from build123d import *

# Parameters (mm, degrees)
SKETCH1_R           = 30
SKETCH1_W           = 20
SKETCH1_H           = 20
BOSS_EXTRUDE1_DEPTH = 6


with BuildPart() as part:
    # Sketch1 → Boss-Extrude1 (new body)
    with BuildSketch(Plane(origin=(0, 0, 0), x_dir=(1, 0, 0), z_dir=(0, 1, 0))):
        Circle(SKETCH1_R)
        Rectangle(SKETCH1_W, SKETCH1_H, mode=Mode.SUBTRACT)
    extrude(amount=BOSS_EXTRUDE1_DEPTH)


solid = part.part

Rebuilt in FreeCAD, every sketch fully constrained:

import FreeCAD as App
import Part
import Sketcher
Q = App.Units.Quantity

doc = App.newDocument("Part")
body = doc.addObject("PartDesign::Body", "Body")

sketch1 = body.newObject("Sketcher::SketchObject", "Sketch")
sketch1.AttachmentSupport = (doc.getObject("XZ_Plane"), [""])
sketch1.MapMode = "FlatFace"
sketch1.addGeometry(Part.Circle(App.Vector(0, 0, 0), App.Vector(0, 0, 1), 30), False)
sketch1.addGeometry(Part.LineSegment(App.Vector(10, 10, 0), App.Vector(-10, 10, 0)), False)
sketch1.addGeometry(Part.LineSegment(App.Vector(-10, 10, 0), App.Vector(-10, -10, 0)), False)
sketch1.addGeometry(Part.LineSegment(App.Vector(-10, -10, 0), App.Vector(10, -10, 0)), False)
sketch1.addGeometry(Part.LineSegment(App.Vector(10, -10, 0), App.Vector(10, 10, 0)), False)
sketch1.addConstraint(Sketcher.Constraint("Coincident", 1, 2, 2, 1))
sketch1.addConstraint(Sketcher.Constraint("Coincident", 2, 2, 3, 1))
sketch1.addConstraint(Sketcher.Constraint("Coincident", 3, 2, 4, 1))
sketch1.addConstraint(Sketcher.Constraint("Coincident", 4, 2, 1, 1))
sketch1.addConstraint(Sketcher.Constraint("Horizontal", 1))
sketch1.addConstraint(Sketcher.Constraint("Vertical", 2))
sketch1.addConstraint(Sketcher.Constraint("Horizontal", 3))
sketch1.addConstraint(Sketcher.Constraint("Vertical", 4))
sketch1.addConstraint(Sketcher.Constraint("Coincident", 0, 3, -1, 1))
sketch1.addConstraint(Sketcher.Constraint("Symmetric", 1, 2, 3, 2, -1, 1))
sketch1.addConstraint(Sketcher.Constraint("Equal", 3, 2))
sketch1.addConstraint(Sketcher.Constraint("Diameter", 0, Q("60 mm")))
sketch1.addConstraint(Sketcher.Constraint("DistanceX", 1, 2, 1, 1, Q("20 mm")))
pad1 = body.newObject("PartDesign::Pad", "Pad")
pad1.Profile = sketch1
pad1.Length = 6
pad1.Reversed = True

doc.recompute()
